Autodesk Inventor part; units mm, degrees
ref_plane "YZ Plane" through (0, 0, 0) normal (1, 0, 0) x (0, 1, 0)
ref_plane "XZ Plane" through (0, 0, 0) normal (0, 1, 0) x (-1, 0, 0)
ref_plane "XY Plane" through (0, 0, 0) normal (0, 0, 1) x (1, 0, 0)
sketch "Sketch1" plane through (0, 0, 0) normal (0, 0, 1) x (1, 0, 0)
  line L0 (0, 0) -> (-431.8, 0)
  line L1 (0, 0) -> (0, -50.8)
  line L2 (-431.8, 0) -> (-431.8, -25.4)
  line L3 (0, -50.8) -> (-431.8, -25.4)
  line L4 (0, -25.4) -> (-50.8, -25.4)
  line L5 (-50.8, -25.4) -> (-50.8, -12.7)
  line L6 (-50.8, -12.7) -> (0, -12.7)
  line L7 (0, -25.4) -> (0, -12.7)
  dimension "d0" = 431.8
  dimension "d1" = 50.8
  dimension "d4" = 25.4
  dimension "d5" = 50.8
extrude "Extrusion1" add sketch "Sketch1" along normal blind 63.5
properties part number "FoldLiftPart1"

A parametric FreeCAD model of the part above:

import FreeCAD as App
import Part
import Sketcher
Q = App.Units.Quantity

doc = App.newDocument("Part")
body = doc.addObject("PartDesign::Body", "Body")

sketch1 = doc.addObject("Sketcher::SketchObject", "Sketch")
body.addObject(sketch1)
sketch1.AttachmentSupport = (doc.XY_Plane, [""])
sketch1.MapMode = "FlatFace"
sketch1.addGeometry([
    Part.LineSegment(App.Vector(0, 0, 0), App.Vector(-431.8, 0, 0)),
    Part.LineSegment(App.Vector(-431.8, 0, 0), App.Vector(-431.8, -25.4, 0)),
    Part.LineSegment(App.Vector(-431.8, -25.4, 0), App.Vector(0, -50.8, 0)),
    Part.LineSegment(App.Vector(0, -50.8, 0), App.Vector(0, 0, 0)),
], False)
sketch1.addConstraint([
    Sketcher.Constraint("Coincident", 0, 2, 1, 1),
    Sketcher.Constraint("Coincident", 1, 2, 2, 1),
    Sketcher.Constraint("Coincident", 2, 2, 3, 1),
    Sketcher.Constraint("Coincident", 3, 2, 0, 1),
    Sketcher.Constraint("Horizontal", 0),
    Sketcher.Constraint("Vertical", 1),
    Sketcher.Constraint("Vertical", 3),
    Sketcher.Constraint("Coincident", 3, 2, -1, 1),
    Sketcher.Constraint("DistanceX", 0, 2, 0, 1, Q("17 in")),
    Sketcher.Constraint("DistanceY", 1, 2, 1, 1, Q("1 in")),
    Sketcher.Constraint("DistanceY", 3, 1, 3, 2, Q("2 in")),
])
pad1 = doc.addObject("PartDesign::Pad", "Pad")
body.addObject(pad1)
pad1.Profile = sketch1
pad1.Length = Q("2.5 in")

doc.recompute()
